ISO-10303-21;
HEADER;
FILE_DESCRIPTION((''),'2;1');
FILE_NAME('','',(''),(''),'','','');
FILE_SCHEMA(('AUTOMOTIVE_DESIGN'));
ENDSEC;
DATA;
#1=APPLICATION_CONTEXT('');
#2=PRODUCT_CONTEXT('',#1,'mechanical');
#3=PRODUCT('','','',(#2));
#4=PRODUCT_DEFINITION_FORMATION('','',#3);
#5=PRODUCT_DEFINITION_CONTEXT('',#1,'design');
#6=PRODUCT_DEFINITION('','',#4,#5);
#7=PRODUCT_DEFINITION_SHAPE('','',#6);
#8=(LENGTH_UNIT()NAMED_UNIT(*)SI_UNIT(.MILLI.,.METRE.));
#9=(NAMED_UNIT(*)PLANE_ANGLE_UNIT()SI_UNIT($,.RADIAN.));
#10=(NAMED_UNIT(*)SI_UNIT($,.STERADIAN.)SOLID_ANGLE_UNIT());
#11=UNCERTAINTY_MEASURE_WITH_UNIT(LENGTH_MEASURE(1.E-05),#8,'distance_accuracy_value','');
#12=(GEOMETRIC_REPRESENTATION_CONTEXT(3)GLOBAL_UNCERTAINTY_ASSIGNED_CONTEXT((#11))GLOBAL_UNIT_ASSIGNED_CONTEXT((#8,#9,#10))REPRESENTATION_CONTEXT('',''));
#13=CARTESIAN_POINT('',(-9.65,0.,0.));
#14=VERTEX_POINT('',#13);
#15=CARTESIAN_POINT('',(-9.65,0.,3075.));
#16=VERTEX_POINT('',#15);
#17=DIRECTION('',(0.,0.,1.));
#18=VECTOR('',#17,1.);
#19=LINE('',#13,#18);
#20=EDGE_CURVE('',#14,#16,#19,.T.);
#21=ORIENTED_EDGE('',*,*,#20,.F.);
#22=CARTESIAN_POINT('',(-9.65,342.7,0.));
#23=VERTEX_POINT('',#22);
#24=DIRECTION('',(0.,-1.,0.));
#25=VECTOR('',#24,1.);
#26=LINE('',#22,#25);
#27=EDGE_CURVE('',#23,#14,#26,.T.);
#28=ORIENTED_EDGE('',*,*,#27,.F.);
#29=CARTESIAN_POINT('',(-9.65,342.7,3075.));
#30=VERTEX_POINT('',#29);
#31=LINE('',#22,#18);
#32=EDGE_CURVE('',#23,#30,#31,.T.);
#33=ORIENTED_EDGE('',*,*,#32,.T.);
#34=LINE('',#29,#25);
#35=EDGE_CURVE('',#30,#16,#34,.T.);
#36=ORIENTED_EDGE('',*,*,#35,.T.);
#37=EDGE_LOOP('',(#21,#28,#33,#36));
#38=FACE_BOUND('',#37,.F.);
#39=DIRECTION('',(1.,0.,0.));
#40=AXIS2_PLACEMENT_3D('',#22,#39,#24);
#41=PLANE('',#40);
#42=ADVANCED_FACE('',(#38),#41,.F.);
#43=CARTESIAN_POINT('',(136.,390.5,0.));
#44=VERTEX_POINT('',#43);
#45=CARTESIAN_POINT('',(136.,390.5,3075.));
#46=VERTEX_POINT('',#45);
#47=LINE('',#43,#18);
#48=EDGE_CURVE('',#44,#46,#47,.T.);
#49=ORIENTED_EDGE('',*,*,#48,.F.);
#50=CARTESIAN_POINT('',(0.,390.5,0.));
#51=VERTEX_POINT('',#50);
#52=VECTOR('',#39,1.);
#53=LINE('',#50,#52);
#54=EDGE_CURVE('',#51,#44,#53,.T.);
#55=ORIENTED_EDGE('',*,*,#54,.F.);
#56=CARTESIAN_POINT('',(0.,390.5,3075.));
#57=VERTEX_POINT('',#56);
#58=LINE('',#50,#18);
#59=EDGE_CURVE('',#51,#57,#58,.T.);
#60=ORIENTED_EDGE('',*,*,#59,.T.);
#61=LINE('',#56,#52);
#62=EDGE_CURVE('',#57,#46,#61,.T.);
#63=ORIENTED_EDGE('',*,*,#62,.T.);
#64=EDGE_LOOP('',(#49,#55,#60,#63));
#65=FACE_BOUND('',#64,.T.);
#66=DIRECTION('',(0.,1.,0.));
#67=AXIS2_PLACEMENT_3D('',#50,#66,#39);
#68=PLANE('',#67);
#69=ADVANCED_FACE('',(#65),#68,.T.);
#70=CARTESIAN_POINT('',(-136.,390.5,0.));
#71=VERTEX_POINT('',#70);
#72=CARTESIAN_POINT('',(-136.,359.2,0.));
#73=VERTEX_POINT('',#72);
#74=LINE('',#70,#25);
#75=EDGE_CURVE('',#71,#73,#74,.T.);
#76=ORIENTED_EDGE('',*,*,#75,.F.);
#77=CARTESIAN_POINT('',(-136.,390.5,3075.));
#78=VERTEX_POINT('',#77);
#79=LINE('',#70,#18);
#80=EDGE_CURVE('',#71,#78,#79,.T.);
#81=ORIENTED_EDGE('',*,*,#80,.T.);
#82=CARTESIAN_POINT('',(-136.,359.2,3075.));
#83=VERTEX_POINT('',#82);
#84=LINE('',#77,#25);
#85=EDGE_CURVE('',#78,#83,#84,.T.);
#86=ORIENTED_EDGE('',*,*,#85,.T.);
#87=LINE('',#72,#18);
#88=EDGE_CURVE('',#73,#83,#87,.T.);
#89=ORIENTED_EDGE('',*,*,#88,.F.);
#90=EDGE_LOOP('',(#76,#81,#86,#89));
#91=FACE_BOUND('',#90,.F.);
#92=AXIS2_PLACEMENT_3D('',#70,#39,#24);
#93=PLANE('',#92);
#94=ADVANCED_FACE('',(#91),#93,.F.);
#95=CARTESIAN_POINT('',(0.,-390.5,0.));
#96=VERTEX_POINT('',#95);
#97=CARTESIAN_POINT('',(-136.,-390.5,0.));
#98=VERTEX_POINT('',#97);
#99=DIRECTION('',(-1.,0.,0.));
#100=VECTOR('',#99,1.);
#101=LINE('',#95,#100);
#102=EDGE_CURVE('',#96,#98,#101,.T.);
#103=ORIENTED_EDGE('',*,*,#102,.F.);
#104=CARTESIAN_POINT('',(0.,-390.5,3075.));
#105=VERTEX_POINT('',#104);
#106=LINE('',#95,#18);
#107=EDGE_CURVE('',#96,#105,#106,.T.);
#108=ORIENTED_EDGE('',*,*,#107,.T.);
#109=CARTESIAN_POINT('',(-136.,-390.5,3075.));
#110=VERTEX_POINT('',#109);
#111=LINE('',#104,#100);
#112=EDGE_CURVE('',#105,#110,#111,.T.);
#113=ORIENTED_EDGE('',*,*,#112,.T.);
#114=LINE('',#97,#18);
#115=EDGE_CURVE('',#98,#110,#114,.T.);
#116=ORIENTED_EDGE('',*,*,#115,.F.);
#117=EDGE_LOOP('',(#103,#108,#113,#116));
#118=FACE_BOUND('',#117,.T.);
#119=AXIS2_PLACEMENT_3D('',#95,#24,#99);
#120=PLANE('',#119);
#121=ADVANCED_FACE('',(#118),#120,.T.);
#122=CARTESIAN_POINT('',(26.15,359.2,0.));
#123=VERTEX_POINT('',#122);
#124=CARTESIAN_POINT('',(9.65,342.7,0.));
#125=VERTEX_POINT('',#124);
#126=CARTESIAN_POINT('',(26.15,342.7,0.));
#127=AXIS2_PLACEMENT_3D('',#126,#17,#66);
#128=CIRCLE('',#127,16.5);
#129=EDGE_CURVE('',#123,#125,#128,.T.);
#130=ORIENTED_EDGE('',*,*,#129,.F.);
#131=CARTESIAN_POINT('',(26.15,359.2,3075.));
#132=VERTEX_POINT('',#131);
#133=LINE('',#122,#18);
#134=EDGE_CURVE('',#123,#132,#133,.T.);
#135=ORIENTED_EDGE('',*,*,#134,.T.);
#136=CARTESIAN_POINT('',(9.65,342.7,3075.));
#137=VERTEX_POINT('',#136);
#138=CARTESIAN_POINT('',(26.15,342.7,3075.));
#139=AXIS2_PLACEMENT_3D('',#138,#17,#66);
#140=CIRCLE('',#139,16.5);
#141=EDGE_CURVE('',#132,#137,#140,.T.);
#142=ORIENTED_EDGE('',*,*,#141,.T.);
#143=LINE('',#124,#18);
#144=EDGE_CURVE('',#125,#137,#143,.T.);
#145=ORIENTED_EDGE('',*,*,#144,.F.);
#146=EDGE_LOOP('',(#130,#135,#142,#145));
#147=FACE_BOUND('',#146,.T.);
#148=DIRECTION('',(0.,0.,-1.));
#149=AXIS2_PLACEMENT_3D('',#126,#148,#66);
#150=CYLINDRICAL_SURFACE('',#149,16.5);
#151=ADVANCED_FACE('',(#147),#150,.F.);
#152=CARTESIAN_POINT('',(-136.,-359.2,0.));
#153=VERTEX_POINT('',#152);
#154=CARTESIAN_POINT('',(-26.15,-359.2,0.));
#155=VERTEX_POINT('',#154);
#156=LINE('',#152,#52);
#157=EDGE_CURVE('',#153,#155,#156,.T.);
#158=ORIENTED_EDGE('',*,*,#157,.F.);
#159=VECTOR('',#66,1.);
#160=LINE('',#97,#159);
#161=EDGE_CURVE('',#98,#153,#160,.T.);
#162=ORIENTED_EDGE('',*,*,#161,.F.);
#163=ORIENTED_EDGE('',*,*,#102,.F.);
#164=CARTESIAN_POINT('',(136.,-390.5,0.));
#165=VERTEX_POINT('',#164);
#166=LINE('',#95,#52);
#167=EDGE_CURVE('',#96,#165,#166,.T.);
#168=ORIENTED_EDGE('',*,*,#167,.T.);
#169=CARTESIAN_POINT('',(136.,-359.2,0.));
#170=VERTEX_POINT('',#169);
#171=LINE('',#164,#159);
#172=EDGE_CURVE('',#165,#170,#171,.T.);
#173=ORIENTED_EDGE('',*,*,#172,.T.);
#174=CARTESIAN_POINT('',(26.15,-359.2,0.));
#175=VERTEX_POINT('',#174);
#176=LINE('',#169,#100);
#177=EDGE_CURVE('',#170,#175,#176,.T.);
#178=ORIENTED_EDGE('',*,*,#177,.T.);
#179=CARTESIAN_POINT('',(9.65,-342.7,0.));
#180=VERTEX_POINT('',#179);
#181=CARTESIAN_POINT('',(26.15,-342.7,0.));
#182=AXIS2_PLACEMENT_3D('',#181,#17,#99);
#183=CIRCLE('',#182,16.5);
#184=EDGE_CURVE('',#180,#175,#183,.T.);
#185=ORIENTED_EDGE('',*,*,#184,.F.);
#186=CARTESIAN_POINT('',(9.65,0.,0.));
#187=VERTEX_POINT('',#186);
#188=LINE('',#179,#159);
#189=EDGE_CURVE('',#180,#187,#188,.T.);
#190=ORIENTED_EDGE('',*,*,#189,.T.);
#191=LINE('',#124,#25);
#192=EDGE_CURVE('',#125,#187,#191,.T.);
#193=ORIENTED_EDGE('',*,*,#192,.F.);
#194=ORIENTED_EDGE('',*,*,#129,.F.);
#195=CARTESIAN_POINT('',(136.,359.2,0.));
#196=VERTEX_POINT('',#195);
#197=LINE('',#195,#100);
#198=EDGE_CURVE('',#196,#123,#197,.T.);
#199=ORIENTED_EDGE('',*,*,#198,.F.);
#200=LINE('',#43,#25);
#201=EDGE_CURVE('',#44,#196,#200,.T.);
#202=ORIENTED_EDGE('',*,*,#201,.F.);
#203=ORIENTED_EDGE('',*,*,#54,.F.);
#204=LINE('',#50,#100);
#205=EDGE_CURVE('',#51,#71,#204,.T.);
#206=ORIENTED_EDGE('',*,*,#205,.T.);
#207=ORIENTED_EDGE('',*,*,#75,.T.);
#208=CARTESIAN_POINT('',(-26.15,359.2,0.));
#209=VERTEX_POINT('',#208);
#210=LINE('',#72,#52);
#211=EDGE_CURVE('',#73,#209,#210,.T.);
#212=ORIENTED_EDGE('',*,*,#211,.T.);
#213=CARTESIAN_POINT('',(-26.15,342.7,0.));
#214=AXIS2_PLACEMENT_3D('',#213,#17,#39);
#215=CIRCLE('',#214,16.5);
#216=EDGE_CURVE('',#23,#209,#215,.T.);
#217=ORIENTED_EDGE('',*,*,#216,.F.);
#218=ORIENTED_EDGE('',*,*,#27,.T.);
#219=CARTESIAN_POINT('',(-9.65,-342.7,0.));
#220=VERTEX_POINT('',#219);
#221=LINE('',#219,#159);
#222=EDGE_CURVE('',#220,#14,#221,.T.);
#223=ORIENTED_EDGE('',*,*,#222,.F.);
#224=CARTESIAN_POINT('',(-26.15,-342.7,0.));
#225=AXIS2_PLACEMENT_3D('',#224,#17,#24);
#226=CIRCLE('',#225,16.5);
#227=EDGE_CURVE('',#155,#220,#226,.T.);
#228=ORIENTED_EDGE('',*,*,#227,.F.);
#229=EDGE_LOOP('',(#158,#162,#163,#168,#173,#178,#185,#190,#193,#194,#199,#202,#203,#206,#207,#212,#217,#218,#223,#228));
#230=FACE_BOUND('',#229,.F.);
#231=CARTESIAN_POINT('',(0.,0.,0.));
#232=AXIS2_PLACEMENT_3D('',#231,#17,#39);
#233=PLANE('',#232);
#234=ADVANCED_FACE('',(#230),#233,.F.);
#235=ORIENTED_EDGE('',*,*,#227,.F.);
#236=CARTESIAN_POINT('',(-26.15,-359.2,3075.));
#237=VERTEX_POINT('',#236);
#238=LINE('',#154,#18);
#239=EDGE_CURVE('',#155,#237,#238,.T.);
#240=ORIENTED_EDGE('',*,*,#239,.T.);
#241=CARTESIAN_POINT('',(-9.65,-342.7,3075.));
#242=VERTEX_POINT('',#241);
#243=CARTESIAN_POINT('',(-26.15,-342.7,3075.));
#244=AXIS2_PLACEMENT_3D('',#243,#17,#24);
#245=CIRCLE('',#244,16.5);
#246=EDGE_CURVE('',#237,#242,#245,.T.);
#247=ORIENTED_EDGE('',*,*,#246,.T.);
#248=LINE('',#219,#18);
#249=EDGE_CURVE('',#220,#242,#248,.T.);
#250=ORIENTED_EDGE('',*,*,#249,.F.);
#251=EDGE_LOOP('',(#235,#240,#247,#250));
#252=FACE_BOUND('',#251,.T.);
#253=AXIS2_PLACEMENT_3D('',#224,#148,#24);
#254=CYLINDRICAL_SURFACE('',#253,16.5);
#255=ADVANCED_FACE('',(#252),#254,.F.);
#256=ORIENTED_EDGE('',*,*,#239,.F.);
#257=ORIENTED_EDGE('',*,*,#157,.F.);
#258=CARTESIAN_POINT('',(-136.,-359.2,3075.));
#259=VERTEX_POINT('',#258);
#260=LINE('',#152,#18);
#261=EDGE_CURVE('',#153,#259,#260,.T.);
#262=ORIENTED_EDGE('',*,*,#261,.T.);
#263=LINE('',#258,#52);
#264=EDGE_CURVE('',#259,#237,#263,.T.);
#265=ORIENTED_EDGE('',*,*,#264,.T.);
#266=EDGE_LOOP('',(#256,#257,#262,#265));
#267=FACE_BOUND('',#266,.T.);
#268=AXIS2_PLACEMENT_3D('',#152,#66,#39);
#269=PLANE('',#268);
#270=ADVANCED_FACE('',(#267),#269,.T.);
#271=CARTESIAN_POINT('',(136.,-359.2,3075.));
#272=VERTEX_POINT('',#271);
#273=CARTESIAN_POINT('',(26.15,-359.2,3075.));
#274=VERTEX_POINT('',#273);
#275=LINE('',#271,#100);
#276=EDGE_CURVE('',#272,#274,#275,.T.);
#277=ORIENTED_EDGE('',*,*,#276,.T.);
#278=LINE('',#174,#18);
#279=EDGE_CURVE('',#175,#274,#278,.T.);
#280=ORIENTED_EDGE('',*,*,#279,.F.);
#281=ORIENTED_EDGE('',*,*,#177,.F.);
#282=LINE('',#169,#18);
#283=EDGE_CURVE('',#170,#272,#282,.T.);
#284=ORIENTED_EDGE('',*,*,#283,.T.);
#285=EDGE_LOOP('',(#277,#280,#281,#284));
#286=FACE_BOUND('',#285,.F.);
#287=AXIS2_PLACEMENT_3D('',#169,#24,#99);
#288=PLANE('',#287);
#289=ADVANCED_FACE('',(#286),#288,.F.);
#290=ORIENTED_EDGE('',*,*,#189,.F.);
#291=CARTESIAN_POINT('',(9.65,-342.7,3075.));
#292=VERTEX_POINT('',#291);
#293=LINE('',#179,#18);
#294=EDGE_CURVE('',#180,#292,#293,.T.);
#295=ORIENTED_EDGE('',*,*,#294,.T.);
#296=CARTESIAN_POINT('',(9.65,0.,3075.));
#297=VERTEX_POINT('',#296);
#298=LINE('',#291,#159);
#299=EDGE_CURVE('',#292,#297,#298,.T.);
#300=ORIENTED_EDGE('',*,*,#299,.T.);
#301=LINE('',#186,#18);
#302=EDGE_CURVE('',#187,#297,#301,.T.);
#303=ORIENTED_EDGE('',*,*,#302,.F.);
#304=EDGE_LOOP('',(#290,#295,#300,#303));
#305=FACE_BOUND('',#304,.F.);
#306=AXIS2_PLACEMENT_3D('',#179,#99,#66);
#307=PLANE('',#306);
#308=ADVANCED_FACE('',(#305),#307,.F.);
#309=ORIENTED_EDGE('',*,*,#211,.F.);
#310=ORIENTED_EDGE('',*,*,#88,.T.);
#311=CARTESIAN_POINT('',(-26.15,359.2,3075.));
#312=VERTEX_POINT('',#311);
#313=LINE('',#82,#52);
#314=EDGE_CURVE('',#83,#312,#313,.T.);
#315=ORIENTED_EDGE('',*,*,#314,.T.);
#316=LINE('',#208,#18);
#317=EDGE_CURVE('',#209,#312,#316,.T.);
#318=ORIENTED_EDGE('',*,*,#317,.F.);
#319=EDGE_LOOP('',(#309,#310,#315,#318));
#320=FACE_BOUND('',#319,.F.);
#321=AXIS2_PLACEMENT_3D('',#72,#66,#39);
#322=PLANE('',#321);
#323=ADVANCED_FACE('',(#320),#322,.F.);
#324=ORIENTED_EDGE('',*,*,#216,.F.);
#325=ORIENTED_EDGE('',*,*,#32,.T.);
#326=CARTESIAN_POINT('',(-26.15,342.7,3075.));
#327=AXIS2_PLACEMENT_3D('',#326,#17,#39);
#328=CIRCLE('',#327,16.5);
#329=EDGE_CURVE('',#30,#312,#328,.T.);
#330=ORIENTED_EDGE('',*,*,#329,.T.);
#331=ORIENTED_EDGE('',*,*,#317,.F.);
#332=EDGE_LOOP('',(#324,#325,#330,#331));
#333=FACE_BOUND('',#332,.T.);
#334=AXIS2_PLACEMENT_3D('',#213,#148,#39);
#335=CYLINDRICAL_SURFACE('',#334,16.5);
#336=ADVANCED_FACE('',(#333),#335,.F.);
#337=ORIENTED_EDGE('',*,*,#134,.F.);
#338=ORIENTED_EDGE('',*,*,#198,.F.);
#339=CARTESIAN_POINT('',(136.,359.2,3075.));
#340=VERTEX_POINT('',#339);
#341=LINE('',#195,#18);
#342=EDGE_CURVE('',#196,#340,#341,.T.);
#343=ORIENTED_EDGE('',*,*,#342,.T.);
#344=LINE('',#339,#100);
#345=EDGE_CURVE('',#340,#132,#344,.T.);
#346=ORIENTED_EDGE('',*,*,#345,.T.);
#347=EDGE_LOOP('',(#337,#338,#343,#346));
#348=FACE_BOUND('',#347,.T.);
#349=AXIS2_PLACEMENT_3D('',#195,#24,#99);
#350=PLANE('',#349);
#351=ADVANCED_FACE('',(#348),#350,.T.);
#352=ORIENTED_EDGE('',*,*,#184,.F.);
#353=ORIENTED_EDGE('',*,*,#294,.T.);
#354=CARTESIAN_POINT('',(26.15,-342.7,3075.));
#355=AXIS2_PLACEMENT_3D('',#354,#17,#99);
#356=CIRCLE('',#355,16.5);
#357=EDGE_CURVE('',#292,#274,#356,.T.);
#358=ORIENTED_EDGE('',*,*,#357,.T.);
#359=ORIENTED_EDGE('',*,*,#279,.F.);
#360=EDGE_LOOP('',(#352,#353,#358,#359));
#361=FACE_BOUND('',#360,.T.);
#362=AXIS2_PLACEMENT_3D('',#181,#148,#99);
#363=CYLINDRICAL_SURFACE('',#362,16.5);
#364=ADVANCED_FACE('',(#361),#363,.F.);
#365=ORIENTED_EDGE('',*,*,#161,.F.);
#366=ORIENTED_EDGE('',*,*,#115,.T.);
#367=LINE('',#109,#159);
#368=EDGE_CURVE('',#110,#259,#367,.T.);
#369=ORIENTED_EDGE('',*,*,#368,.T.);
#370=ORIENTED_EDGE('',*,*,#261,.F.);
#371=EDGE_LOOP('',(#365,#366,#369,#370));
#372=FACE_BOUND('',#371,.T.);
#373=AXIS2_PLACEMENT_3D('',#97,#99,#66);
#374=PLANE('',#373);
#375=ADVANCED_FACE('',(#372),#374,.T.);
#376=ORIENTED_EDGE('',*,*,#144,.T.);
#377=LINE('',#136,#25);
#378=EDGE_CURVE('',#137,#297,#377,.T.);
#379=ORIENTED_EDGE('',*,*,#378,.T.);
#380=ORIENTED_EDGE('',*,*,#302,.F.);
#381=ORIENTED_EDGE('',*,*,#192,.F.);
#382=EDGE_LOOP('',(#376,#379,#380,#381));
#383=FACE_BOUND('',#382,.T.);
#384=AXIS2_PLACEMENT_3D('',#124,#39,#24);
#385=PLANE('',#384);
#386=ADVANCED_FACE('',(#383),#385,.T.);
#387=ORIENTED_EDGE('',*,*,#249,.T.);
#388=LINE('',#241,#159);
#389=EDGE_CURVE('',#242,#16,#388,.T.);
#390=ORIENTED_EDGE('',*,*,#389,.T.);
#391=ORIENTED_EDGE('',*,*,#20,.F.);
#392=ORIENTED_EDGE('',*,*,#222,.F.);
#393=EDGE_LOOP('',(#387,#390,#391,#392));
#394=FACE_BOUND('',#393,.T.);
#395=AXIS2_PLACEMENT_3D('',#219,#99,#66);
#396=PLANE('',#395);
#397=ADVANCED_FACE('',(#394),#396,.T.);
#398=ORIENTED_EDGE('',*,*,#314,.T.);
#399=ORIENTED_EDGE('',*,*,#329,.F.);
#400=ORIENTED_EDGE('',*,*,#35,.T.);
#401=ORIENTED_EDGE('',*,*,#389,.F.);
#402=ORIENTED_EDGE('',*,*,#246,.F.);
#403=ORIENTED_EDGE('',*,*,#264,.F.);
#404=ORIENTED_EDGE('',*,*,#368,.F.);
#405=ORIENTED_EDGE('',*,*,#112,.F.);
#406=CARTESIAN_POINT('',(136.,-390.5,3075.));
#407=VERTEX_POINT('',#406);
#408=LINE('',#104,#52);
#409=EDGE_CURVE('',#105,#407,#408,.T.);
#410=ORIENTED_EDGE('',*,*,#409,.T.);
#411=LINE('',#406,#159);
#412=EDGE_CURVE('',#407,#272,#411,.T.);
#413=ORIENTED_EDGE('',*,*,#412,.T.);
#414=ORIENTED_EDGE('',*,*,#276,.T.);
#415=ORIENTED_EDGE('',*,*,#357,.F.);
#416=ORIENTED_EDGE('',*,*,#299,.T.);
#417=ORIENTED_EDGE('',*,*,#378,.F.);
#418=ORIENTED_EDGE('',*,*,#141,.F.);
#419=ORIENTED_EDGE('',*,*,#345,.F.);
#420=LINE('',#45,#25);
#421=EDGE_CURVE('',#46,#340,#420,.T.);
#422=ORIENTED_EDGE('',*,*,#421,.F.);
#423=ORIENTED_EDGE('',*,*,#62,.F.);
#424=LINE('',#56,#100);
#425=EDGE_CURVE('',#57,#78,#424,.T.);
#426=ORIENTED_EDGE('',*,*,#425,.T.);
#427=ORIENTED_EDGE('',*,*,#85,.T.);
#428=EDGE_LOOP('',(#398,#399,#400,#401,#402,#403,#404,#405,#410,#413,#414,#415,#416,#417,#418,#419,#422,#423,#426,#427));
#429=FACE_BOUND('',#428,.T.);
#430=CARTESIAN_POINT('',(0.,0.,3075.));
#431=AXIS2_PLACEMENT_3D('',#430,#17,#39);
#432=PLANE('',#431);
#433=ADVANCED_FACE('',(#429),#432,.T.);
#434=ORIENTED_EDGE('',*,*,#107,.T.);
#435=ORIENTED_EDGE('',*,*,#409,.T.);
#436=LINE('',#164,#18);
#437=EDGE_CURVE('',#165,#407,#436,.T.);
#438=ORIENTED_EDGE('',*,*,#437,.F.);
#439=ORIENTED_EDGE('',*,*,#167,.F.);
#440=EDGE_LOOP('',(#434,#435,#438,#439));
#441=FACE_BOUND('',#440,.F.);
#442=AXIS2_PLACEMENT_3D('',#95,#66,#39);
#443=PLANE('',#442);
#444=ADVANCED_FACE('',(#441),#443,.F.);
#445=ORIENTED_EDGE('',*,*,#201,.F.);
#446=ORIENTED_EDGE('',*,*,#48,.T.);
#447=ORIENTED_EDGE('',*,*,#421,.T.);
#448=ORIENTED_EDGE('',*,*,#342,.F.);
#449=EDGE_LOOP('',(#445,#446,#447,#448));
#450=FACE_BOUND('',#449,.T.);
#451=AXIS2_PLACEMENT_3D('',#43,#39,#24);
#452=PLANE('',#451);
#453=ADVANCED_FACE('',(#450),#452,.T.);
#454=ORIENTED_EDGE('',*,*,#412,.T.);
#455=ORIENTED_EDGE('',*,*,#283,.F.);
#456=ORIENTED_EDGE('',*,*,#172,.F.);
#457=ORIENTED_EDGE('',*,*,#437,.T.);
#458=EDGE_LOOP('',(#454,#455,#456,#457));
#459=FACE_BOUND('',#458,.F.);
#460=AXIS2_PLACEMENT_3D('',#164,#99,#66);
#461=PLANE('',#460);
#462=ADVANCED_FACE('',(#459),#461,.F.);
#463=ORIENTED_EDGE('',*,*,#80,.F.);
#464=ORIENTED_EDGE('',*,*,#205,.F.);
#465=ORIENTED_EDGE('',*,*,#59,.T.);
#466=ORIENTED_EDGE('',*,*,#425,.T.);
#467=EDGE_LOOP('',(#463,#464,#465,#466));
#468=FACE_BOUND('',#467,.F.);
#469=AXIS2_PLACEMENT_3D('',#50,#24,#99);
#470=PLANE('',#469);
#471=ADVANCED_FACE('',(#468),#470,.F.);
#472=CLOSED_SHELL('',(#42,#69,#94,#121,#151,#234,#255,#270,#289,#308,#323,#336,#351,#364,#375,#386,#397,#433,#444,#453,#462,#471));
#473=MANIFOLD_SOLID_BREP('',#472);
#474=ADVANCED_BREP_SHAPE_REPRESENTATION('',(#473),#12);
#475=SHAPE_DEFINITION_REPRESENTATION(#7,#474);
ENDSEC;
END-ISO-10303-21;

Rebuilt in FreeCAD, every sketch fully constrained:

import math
import FreeCAD as App
import Part
import Sketcher

V = App.Vector

doc = App.newDocument("Part")
body = doc.addObject("PartDesign::Body", "Body")

# Sketch on XY plane
sketch1 = body.newObject("Sketcher::SketchObject", "Sketch")
sketch1.AttachmentSupport = (doc.getObject("XY_Plane"), [""])
sketch1.MapMode = "FlatFace"
sketch1.addGeometry(Part.LineSegment(V(-136, -359.2, 0), V(-136, -390.5, 0)), False)
sketch1.addGeometry(Part.LineSegment(V(-136, -390.5, 0), V(136, -390.5, 0)), False)
sketch1.addGeometry(Part.LineSegment(V(136, -390.5, 0), V(136, -359.2, 0)), False)
sketch1.addGeometry(Part.LineSegment(V(136, -359.2, 0), V(26.15, -359.2, 0)), False)
sketch1.addGeometry(Part.ArcOfCircle(Part.Circle(V(26.15, -342.7, 0), V(0, 0, 1), 16.5), math.radians(180), math.radians(270)), False)
sketch1.addGeometry(Part.LineSegment(V(9.65, -342.7, 0), V(9.65, 342.7, 0)), False)
sketch1.addGeometry(Part.ArcOfCircle(Part.Circle(V(26.15, 342.7, 0), V(0, 0, 1), 16.5), math.radians(90), math.radians(180)), False)
sketch1.addGeometry(Part.LineSegment(V(26.15, 359.2, 0), V(136, 359.2, 0)), False)
sketch1.addGeometry(Part.LineSegment(V(136, 359.2, 0), V(136, 390.5, 0)), False)
sketch1.addGeometry(Part.LineSegment(V(136, 390.5, 0), V(-136, 390.5, 0)), False)
sketch1.addGeometry(Part.LineSegment(V(-136, 390.5, 0), V(-136, 359.2, 0)), False)
sketch1.addGeometry(Part.LineSegment(V(-136, 359.2, 0), V(-26.15, 359.2, 0)), False)
sketch1.addGeometry(Part.ArcOfCircle(Part.Circle(V(-26.15, 342.7, 0), V(0, 0, 1), 16.5), math.radians(0), math.radians(90)), False)
sketch1.addGeometry(Part.LineSegment(V(-9.65, 342.7, 0), V(-9.65, -342.7, 0)), False)
sketch1.addGeometry(Part.ArcOfCircle(Part.Circle(V(-26.15, -342.7, 0), V(0, 0, 1), 16.5), math.radians(-90), math.radians(0)), False)
sketch1.addGeometry(Part.LineSegment(V(-26.15, -359.2, 0), V(-136, -359.2, 0)), False)
sketch1.addConstraint(Sketcher.Constraint("Coincident", 0, 2, 1, 1))
sketch1.addConstraint(Sketcher.Constraint("Coincident", 1, 2, 2, 1))
sketch1.addConstraint(Sketcher.Constraint("Coincident", 2, 2, 3, 1))
sketch1.addConstraint(Sketcher.Constraint("Tangent", 3, 2, 4, 2))
sketch1.addConstraint(Sketcher.Constraint("Tangent", 4, 1, 5, 1))
sketch1.addConstraint(Sketcher.Constraint("Tangent", 5, 2, 6, 2))
sketch1.addConstraint(Sketcher.Constraint("Tangent", 6, 1, 7, 1))
sketch1.addConstraint(Sketcher.Constraint("Coincident", 7, 2, 8, 1))
sketch1.addConstraint(Sketcher.Constraint("Coincident", 8, 2, 9, 1))
sketch1.addConstraint(Sketcher.Constraint("Coincident", 9, 2, 10, 1))
sketch1.addConstraint(Sketcher.Constraint("Coincident", 10, 2, 11, 1))
sketch1.addConstraint(Sketcher.Constraint("Tangent", 11, 2, 12, 2))
sketch1.addConstraint(Sketcher.Constraint("Tangent", 12, 1, 13, 1))
sketch1.addConstraint(Sketcher.Constraint("Tangent", 13, 2, 14, 2))
sketch1.addConstraint(Sketcher.Constraint("Tangent", 14, 1, 15, 1))
sketch1.addConstraint(Sketcher.Constraint("Coincident", 15, 2, 0, 1))
sketch1.addConstraint(Sketcher.Constraint("Vertical", 0))
sketch1.addConstraint(Sketcher.Constraint("Horizontal", 1))
sketch1.addConstraint(Sketcher.Constraint("Vertical", 2))
sketch1.addConstraint(Sketcher.Constraint("Horizontal", 3))
sketch1.addConstraint(Sketcher.Constraint("Vertical", 5))
sketch1.addConstraint(Sketcher.Constraint("Horizontal", 7))
sketch1.addConstraint(Sketcher.Constraint("Vertical", 8))
sketch1.addConstraint(Sketcher.Constraint("Horizontal", 9))
sketch1.addConstraint(Sketcher.Constraint("Vertical", 10))
sketch1.addConstraint(Sketcher.Constraint("Horizontal", 11))
sketch1.addConstraint(Sketcher.Constraint("Vertical", 13))
sketch1.addConstraint(Sketcher.Constraint("Horizontal", 15))
sketch1.addConstraint(Sketcher.Constraint("Equal", 4, 6))
sketch1.addConstraint(Sketcher.Constraint("Equal", 6, 12))
sketch1.addConstraint(Sketcher.Constraint("Equal", 12, 14))
sketch1.addConstraint(Sketcher.Constraint("Symmetric", 4, 3, 12, 3, -1, 1))
sketch1.addConstraint(Sketcher.Constraint("Symmetric", 0, 2, 8, 2, -1, 1))
sketch1.addConstraint(Sketcher.Constraint("Symmetric", 7, 2, 10, 2, -2))
sketch1.addConstraint(Sketcher.Constraint("Symmetric", 2, 2, 15, 2, -2))
sketch1.addConstraint(Sketcher.Constraint("Radius", 4, 16.5))
sketch1.addConstraint(Sketcher.Constraint("DistanceY", 0, 2, 0, 1, 31.3))
sketch1.addConstraint(Sketcher.Constraint("DistanceX", 0, 2, -1, 1, 136.0))
sketch1.addConstraint(Sketcher.Constraint("DistanceY", 0, 2, -1, 1, 390.5))
sketch1.addConstraint(Sketcher.Constraint("DistanceX", -1, 1, 4, 1, 9.65))
pad1 = body.newObject("PartDesign::Pad", "Pad")
pad1.Profile = sketch1
pad1.Length = 3075

doc.recompute()
